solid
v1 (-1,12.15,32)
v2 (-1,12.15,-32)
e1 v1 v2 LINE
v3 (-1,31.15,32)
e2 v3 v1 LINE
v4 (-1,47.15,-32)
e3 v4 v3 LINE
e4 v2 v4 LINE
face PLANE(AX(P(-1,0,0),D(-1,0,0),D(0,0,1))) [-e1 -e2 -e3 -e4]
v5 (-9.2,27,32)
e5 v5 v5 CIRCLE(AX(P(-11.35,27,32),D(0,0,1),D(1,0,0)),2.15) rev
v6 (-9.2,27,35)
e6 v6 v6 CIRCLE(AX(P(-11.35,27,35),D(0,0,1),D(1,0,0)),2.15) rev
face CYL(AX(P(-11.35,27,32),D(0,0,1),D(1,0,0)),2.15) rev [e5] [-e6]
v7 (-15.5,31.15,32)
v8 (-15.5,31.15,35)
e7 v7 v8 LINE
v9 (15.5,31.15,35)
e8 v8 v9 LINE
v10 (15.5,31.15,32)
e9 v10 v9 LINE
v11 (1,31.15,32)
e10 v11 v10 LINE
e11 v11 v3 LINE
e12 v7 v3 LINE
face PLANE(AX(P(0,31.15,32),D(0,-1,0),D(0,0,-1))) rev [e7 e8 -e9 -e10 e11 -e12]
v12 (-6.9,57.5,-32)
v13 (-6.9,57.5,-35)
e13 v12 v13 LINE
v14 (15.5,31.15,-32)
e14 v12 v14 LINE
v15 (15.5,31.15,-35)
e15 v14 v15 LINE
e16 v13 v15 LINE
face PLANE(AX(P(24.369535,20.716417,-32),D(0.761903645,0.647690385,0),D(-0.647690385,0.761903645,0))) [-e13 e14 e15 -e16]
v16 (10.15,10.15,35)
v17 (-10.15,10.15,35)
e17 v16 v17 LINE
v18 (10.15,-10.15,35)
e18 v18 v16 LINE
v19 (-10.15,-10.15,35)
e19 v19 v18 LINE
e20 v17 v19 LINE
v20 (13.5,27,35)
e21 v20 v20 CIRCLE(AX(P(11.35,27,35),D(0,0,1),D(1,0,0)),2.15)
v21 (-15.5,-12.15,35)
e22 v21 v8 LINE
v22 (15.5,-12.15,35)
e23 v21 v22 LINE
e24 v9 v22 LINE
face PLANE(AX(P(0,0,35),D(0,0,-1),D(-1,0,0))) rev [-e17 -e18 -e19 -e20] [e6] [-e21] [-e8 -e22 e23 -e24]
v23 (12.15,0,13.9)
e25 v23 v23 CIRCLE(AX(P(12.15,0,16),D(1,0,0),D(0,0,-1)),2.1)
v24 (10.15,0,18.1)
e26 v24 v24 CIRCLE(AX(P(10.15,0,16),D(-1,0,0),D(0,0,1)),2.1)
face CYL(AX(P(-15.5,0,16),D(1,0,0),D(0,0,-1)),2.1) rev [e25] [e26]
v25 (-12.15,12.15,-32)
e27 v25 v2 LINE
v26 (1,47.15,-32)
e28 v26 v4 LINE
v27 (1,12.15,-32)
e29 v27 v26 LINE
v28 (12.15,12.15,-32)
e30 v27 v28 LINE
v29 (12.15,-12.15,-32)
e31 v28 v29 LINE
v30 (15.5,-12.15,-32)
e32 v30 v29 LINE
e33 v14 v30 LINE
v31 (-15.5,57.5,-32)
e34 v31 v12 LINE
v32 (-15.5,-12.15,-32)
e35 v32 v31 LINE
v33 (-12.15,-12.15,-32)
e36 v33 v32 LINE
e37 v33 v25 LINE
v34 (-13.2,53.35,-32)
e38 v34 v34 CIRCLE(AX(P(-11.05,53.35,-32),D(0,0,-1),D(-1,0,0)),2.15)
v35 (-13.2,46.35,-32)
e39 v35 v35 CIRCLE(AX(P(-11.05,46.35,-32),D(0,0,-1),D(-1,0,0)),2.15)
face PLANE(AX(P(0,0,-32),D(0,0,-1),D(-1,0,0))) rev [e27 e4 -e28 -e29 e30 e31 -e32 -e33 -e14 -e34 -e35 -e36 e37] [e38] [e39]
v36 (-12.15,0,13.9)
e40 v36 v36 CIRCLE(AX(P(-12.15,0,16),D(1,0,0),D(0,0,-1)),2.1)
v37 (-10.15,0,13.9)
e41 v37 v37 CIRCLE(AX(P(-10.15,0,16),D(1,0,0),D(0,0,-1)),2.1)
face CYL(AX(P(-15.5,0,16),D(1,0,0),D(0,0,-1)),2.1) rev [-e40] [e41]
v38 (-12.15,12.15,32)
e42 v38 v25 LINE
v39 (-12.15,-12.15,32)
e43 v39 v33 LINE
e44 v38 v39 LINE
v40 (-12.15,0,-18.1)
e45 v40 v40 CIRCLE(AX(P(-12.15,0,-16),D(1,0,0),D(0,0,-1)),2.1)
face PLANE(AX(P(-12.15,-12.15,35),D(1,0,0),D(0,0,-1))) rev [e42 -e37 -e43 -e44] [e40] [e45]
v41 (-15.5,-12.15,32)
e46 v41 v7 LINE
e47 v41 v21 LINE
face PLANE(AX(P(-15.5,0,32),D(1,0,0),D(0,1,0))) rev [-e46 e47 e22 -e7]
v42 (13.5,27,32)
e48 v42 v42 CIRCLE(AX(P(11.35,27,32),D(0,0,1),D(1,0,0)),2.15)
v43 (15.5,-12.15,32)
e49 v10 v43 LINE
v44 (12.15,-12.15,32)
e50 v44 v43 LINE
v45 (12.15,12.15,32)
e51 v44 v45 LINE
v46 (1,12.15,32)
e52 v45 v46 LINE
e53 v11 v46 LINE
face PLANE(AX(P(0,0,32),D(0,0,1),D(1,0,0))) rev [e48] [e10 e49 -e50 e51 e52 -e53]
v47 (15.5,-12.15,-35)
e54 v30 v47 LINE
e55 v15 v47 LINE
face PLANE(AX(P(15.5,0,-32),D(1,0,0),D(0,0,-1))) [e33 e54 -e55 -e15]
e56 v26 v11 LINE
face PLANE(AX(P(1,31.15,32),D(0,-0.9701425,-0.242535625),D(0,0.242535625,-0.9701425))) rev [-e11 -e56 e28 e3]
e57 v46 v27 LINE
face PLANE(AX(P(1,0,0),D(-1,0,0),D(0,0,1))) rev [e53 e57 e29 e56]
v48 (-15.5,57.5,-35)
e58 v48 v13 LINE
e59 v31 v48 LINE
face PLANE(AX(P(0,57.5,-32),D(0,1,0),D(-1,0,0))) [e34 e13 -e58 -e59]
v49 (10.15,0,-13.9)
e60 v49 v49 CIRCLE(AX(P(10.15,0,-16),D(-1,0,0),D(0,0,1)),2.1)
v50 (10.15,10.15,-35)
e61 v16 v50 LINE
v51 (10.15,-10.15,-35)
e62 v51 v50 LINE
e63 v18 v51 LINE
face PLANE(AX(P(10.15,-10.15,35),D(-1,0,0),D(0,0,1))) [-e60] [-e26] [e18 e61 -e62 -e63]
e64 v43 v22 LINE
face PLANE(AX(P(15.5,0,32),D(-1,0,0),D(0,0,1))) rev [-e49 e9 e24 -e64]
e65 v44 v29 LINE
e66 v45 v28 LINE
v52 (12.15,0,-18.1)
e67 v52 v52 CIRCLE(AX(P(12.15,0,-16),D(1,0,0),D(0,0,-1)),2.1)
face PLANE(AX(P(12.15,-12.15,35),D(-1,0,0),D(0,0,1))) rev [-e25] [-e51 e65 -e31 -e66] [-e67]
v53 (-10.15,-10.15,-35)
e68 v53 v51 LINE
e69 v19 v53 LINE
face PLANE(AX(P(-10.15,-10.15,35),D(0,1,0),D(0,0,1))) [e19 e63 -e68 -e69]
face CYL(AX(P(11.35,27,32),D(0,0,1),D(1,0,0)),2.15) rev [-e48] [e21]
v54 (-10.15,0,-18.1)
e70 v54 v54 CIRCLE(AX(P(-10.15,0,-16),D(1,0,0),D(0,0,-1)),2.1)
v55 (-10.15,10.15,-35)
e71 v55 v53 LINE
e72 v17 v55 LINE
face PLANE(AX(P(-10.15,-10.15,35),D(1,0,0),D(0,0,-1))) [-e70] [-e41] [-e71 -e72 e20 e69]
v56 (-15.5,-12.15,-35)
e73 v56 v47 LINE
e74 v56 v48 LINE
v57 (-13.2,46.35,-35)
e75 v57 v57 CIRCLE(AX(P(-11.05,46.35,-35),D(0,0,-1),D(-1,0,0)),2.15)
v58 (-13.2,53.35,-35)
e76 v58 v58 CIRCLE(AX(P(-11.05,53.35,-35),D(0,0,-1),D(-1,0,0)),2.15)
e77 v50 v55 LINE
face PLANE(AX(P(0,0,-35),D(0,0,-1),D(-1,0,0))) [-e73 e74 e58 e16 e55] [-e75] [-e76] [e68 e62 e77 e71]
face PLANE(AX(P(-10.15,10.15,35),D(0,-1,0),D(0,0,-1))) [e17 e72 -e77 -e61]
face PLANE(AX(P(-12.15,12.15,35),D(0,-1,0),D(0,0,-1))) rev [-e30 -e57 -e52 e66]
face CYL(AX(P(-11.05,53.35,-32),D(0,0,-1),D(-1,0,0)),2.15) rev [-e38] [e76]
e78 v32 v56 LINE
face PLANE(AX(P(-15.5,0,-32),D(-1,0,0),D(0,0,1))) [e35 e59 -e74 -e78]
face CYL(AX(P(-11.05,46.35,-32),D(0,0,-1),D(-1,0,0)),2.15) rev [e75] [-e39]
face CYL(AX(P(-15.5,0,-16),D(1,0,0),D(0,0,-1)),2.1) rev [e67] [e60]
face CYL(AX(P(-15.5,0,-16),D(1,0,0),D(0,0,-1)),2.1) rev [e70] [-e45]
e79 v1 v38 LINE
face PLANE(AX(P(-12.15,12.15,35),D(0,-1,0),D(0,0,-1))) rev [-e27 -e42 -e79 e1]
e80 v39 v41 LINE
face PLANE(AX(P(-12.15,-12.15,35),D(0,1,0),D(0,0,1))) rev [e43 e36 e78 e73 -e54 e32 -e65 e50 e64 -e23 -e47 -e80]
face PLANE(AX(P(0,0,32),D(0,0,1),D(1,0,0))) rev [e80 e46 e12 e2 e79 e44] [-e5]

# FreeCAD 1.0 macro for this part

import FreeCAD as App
import Part
import Sketcher

V = App.Vector
Q = App.Units.Quantity

doc = App.newDocument("Part")
params = doc.addObject("Spreadsheet::Sheet", "Params")
for row, (alias, value) in enumerate([
    ("sketch1_width", "24.3 mm"),
    ("sketch1_width2", "20.3 mm"),
    ("pad1_length", "70 mm"),
    ("sketch2_diameter", "4.3 mm"),
    ("sketch2_width", "31 mm"),
    ("sketch2_width2", "24.3 mm"),
    ("sketch2_height", "43.3 mm"),
    ("pad2_length", "3 mm"),
    ("sketch3_diameter", "4.3 mm"),
    ("sketch3_width", "8.6 mm"),
    ("sketch3_width2", "24.3 mm"),
    ("sketch3_height", "43.3 mm"),
    ("sketch3_height2", "69.65 mm"),
    ("pad3_length", "3 mm"),
    ("sketch4_width", "35 mm"),
    ("sketch4_width2", "19 mm"),
    ("sketch4_height", "64 mm"),
    ("pad4_length", "2 mm"),
    ("sketch5_diameter", "4.2 mm"),
], start=1):
    params.set(f"A{row}", alias)
    params.set(f"B{row}", "=" + value)
    params.setAlias(f"B{row}", alias)

body = doc.addObject("PartDesign::Body", "Body")

sketch1 = doc.addObject("Sketcher::SketchObject", "Sketch")
body.addObject(sketch1)
sketch1.AttachmentSupport = (doc.XY_Plane, [""])
sketch1.MapMode = "FlatFace"
sketch1.addGeometry([
    Part.LineSegment(V(-12, 12, 0), V(-12, -12, 0)),
    Part.LineSegment(V(-12, -12, 0), V(12, -12, 0)),
    Part.LineSegment(V(12, -12, 0), V(12, 12, 0)),
    Part.LineSegment(V(12, 12, 0), V(-12, 12, 0)),
    Part.LineSegment(V(10, -10, 0), V(-10, -10, 0)),
    Part.LineSegment(V(-10, -10, 0), V(-10, 10, 0)),
    Part.LineSegment(V(-10, 10, 0), V(10, 10, 0)),
    Part.LineSegment(V(10, 10, 0), V(10, -10, 0)),
], False)
sketch1.addConstraint([
    Sketcher.Constraint("Coincident", 0, 2, 1, 1),
    Sketcher.Constraint("Coincident", 1, 2, 2, 1),
    Sketcher.Constraint("Coincident", 2, 2, 3, 1),
    Sketcher.Constraint("Coincident", 3, 2, 0, 1),
    Sketcher.Constraint("Coincident", 4, 2, 5, 1),
    Sketcher.Constraint("Coincident", 5, 2, 6, 1),
    Sketcher.Constraint("Coincident", 6, 2, 7, 1),
    Sketcher.Constraint("Coincident", 7, 2, 4, 1),
    Sketcher.Constraint("Vertical", 0),
    Sketcher.Constraint("Horizontal", 1),
    Sketcher.Constraint("Vertical", 2),
    Sketcher.Constraint("Horizontal", 3),
    Sketcher.Constraint("Horizontal", 4),
    Sketcher.Constraint("Vertical", 5),
    Sketcher.Constraint("Horizontal", 6),
    Sketcher.Constraint("Vertical", 7),
    Sketcher.Constraint("Symmetric", 0, 2, 2, 2, -1, 1),
    Sketcher.Constraint("Symmetric", 4, 2, 6, 2, -1, 1),
    Sketcher.Constraint("Equal", 3, 0),
    Sketcher.Constraint("Equal", 6, 5),
    Sketcher.Constraint("DistanceX", 1, 1, 1, 2, Q("24.3 mm")),
    Sketcher.Constraint("DistanceX", 4, 2, 4, 1, Q("20.3 mm")),
])
sketch1.setExpression("Constraints[20]", "Params.sketch1_width")
sketch1.setExpression("Constraints[21]", "Params.sketch1_width2")
pad1 = doc.addObject("PartDesign::Pad", "Pad")
body.addObject(pad1)
pad1.Profile = sketch1
pad1.setExpression("Length", "Params.pad1_length")
pad1.Midplane = True

sketch2 = doc.addObject("Sketcher::SketchObject", "Sketch001")
body.addObject(sketch2)
sketch2.AttachmentSupport = (doc.XY_Plane, [""])
sketch2.MapMode = "FlatFace"
sketch2.AttachmentOffset = App.Placement(V(0, 0, 35), App.Rotation())
sketch2.addGeometry([
    Part.LineSegment(V(15.5, -12.2, 0), V(15.5, 31.1, 0)),
    Part.LineSegment(V(15.5, 31.1, 0), V(-15.5, 31.1, 0)),
    Part.LineSegment(V(-15.5, 31.1, 0), V(-15.5, -12.2, 0)),
    Part.LineSegment(V(-15.5, -12.2, 0), V(-12.2, -12.2, 0)),
    Part.LineSegment(V(-12.2, -12.2, 0), V(-12.2, 12.2, 0)),
    Part.LineSegment(V(-12.2, 12.2, 0), V(12.2, 12.2, 0)),
    Part.LineSegment(V(12.2, 12.2, 0), V(12.2, -12.2, 0)),
    Part.LineSegment(V(12.2, -12.2, 0), V(15.5, -12.2, 0)),
    Part.Circle(V(-11.3, 27, 0), V(0, 0, 1), 2.1),
    Part.Circle(V(11.3, 27, 0), V(0, 0, 1), 2.1),
], False)
sketch2.addConstraint([
    Sketcher.Constraint("Coincident", 0, 2, 1, 1),
    Sketcher.Constraint("Coincident", 1, 2, 2, 1),
    Sketcher.Constraint("Coincident", 2, 2, 3, 1),
    Sketcher.Constraint("Coincident", 3, 2, 4, 1),
    Sketcher.Constraint("Coincident", 4, 2, 5, 1),
    Sketcher.Constraint("Coincident", 5, 2, 6, 1),
    Sketcher.Constraint("Coincident", 6, 2, 7, 1),
    Sketcher.Constraint("Coincident", 7, 2, 0, 1),
    Sketcher.Constraint("Vertical", 0),
    Sketcher.Constraint("Horizontal", 1),
    Sketcher.Constraint("Vertical", 2),
    Sketcher.Constraint("Horizontal", 3),
    Sketcher.Constraint("Vertical", 4),
    Sketcher.Constraint("Horizontal", 5),
    Sketcher.Constraint("Vertical", 6),
    Sketcher.Constraint("Horizontal", 7),
    Sketcher.Constraint("Equal", 8, 9),
    Sketcher.Constraint("Symmetric", 3, 2, 5, 2, -1, 1),
    Sketcher.Constraint("Symmetric", 8, 3, 9, 3, -2),
    Sketcher.Constraint("Symmetric", 2, 2, 7, 2, -2),
    Sketcher.Constraint("Equal", 5, 4),
    Sketcher.Constraint("Diameter", 8, Q("4.3 mm")),
    Sketcher.Constraint("DistanceX", 1, 2, 1, 1, Q("31 mm")),
    Sketcher.Constraint("DistanceX", 5, 1, 5, 2, Q("24.3 mm")),
    Sketcher.Constraint("DistanceY", 0, 1, 0, 2, Q("43.3 mm")),
    Sketcher.Constraint("DistanceY", -1, 1, 8, 3, Q("27 mm")),
    Sketcher.Constraint("DistanceX", 8, 3, 9, 3, Q("22.7 mm")),
])
sketch2.setExpression("Constraints[21]", "Params.sketch2_diameter")
sketch2.setExpression("Constraints[22]", "Params.sketch2_width")
sketch2.setExpression("Constraints[23]", "Params.sketch2_width2")
sketch2.setExpression("Constraints[24]", "Params.sketch2_height")
pad2 = doc.addObject("PartDesign::Pad", "Pad001")
body.addObject(pad2)
pad2.Profile = sketch2
pad2.setExpression("Length", "Params.pad2_length")
pad2.Reversed = True

sketch3 = doc.addObject("Sketcher::SketchObject", "Sketch002")
body.addObject(sketch3)
sketch3.AttachmentSupport = (doc.XY_Plane, [""])
sketch3.MapMode = "FlatFace"
sketch3.AttachmentOffset = App.Placement(V(0, 0, -35), App.Rotation())
sketch3.addGeometry([
    Part.LineSegment(V(-12.2, -12.2, 0), V(-15.5, -12.2, 0)),
    Part.LineSegment(V(-15.5, -12.2, 0), V(-15.5, 57.5, 0)),
    Part.LineSegment(V(-15.5, 57.5, 0), V(-6.9, 57.5, 0)),
    Part.LineSegment(V(-6.9, 57.5, 0), V(15.5, 31.1, 0)),
    Part.LineSegment(V(15.5, 31.1, 0), V(15.5, -12.2, 0)),
    Part.LineSegment(V(15.5, -12.2, 0), V(12.2, -12.2, 0)),
    Part.LineSegment(V(12.2, -12.2, 0), V(12.2, 12.2, 0)),
    Part.LineSegment(V(12.2, 12.2, 0), V(-12.2, 12.2, 0)),
    Part.LineSegment(V(-12.2, 12.2, 0), V(-12.2, -12.2, 0)),
    Part.Circle(V(-11.1, 46.4, 0), V(0, 0, 1), 2.1),
    Part.Circle(V(-11.1, 53.4, 0), V(0, 0, 1), 2.1),
], False)
sketch3.addConstraint([
    Sketcher.Constraint("Coincident", 0, 2, 1, 1),
    Sketcher.Constraint("Coincident", 1, 2, 2, 1),
    Sketcher.Constraint("Coincident", 2, 2, 3, 1),
    Sketcher.Constraint("Coincident", 3, 2, 4, 1),
    Sketcher.Constraint("Coincident", 4, 2, 5, 1),
    Sketcher.Constraint("Coincident", 5, 2, 6, 1),
    Sketcher.Constraint("Coincident", 6, 2, 7, 1),
    Sketcher.Constraint("Coincident", 7, 2, 8, 1),
    Sketcher.Constraint("Coincident", 8, 2, 0, 1),
    Sketcher.Constraint("Horizontal", 0),
    Sketcher.Constraint("Vertical", 1),
    Sketcher.Constraint("Horizontal", 2),
    Sketcher.Constraint("Vertical", 4),
    Sketcher.Constraint("Horizontal", 5),
    Sketcher.Constraint("Vertical", 6),
    Sketcher.Constraint("Horizontal", 7),
    Sketcher.Constraint("Vertical", 8),
    Sketcher.Constraint("Equal", 9, 10),
    Sketcher.Constraint("Symmetric", 5, 2, 7, 2, -1, 1),
    Sketcher.Constraint("Symmetric", 0, 2, 4, 2, -2),
    Sketcher.Constraint("Vertical", 9, 3, 10, 3),
    Sketcher.Constraint("Equal", 7, 6),
    Sketcher.Constraint("Diameter", 9, Q("4.3 mm")),
    Sketcher.Constraint("DistanceX", 2, 1, 2, 2, Q("8.6 mm")),
    Sketcher.Constraint("DistanceX", 7, 2, 7, 1, Q("24.3 mm")),
    Sketcher.Constraint("DistanceY", 4, 2, 4, 1, Q("43.3 mm")),
    Sketcher.Constraint("DistanceY", 9, 3, 10, 3, Q("7 mm")),
    Sketcher.Constraint("DistanceX", 1, 2, 3, 2, Q("31 mm")),
    Sketcher.Constraint("DistanceY", 1, 1, 1, 2, Q("69.65 mm")),
    Sketcher.Constraint("DistanceY", 0, 2, 9, 3, Q("58.5 mm")),
    Sketcher.Constraint("DistanceX", 9, 3, 5, 2, Q("23.2 mm")),
])
sketch3.setExpression("Constraints[22]", "Params.sketch3_diameter")
sketch3.setExpression("Constraints[23]", "Params.sketch3_width")
sketch3.setExpression("Constraints[24]", "Params.sketch3_width2")
sketch3.setExpression("Constraints[25]", "Params.sketch3_height")
sketch3.setExpression("Constraints[28]", "Params.sketch3_height2")
pad3 = doc.addObject("PartDesign::Pad", "Pad002")
body.addObject(pad3)
pad3.Profile = sketch3
pad3.setExpression("Length", "Params.pad3_length")

sketch4 = doc.addObject("Sketcher::SketchObject", "Sketch003")
body.addObject(sketch4)
sketch4.AttachmentSupport = (doc.YZ_Plane, [""])
sketch4.MapMode = "FlatFace"
sketch4.addGeometry([
    Part.LineSegment(V(12, 32, 0), V(12, -32, 0)),
    Part.LineSegment(V(12, -32, 0), V(47, -32, 0)),
    Part.LineSegment(V(47, -32, 0), V(31, 32, 0)),
    Part.LineSegment(V(31, 32, 0), V(12, 32, 0)),
], False)
sketch4.addConstraint([
    Sketcher.Constraint("Coincident", 0, 2, 1, 1),
    Sketcher.Constraint("Coincident", 1, 2, 2, 1),
    Sketcher.Constraint("Coincident", 2, 2, 3, 1),
    Sketcher.Constraint("Coincident", 3, 2, 0, 1),
    Sketcher.Constraint("Vertical", 0),
    Sketcher.Constraint("Horizontal", 1),
    Sketcher.Constraint("Horizontal", 3),
    Sketcher.Constraint("DistanceX", 1, 1, 1, 2, Q("35 mm")),
    Sketcher.Constraint("DistanceX", 3, 2, 3, 1, Q("19 mm")),
    Sketcher.Constraint("DistanceY", 0, 2, 0, 1, Q("64 mm")),
    Sketcher.Constraint("DistanceY", 0, 2, -1, 1, Q("32 mm")),
    Sketcher.Constraint("DistanceX", -1, 1, 0, 2, Q("12.15 mm")),
])
sketch4.setExpression("Constraints[7]", "Params.sketch4_width")
sketch4.setExpression("Constraints[8]", "Params.sketch4_width2")
sketch4.setExpression("Constraints[9]", "Params.sketch4_height")
pad4 = doc.addObject("PartDesign::Pad", "Pad003")
body.addObject(pad4)
pad4.Profile = sketch4
pad4.setExpression("Length", "Params.pad4_length")
pad4.Midplane = True

sketch5 = doc.addObject("Sketcher::SketchObject", "Sketch004")
body.addObject(sketch5)
sketch5.AttachmentSupport = (doc.YZ_Plane, [""])
sketch5.MapMode = "FlatFace"
sketch5.AttachmentOffset = App.Placement(V(0, 0, 12.15), App.Rotation())
sketch5.addGeometry([
    Part.Circle(V(0, 16, 0), V(0, 0, 1), 2.1),
    Part.Circle(V(0, -16, 0), V(0, 0, 1), 2.1),
], False)
sketch5.addConstraint([
    Sketcher.Constraint("Equal", 0, 1),
    Sketcher.Constraint("Symmetric", 0, 3, 1, 3, -1, 1),
    Sketcher.Constraint("PointOnObject", 0, 3, -2),
    Sketcher.Constraint("Diameter", 0, Q("4.2 mm")),
    Sketcher.Constraint("DistanceY", -1, 1, 0, 3, Q("16 mm")),
])
sketch5.setExpression("Constraints[3]", "Params.sketch5_diameter")
pocket1 = doc.addObject("PartDesign::Pocket", "Pocket")
body.addObject(pocket1)
pocket1.Profile = sketch5
pocket1.Type = "ThroughAll"

doc.recompute()
